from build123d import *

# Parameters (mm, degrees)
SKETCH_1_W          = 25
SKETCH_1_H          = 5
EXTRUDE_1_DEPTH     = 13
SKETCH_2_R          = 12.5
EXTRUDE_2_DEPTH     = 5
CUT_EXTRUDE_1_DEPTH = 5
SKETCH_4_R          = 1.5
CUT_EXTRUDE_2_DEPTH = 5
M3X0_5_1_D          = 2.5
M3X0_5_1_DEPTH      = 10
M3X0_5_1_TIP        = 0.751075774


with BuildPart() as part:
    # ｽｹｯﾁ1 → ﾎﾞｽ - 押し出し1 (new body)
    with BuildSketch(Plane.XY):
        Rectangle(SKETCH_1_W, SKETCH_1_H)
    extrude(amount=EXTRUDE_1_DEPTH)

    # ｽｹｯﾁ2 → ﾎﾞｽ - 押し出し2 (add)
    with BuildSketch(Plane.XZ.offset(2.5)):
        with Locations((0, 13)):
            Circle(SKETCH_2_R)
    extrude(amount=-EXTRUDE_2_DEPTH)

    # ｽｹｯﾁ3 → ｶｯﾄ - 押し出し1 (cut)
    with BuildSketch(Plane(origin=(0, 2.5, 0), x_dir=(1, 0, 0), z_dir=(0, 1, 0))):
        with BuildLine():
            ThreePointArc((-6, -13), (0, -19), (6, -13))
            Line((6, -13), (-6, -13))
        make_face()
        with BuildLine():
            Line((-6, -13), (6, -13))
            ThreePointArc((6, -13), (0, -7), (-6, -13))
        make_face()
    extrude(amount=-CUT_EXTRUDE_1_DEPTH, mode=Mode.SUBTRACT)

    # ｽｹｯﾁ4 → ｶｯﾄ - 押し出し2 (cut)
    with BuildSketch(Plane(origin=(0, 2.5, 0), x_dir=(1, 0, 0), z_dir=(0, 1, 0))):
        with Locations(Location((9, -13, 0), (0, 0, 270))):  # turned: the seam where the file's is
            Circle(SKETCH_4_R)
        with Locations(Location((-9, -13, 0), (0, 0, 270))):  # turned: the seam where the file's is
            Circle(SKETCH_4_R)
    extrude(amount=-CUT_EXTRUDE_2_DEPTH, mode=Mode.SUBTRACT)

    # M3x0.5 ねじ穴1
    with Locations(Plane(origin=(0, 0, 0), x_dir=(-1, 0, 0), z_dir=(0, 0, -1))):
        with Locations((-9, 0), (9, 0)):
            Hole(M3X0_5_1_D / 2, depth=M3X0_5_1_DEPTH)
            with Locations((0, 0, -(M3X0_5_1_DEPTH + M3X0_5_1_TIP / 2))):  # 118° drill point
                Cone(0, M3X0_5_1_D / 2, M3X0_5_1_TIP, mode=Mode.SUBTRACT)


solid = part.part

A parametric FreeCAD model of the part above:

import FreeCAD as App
import Part
import Sketcher
from FreeCAD import Vector

doc = App.newDocument("Part")
body = doc.addObject("PartDesign::Body", "Body")

# Sketch on XY plane
sketch1 = doc.addObject("Sketcher::SketchObject", "Sketch")
body.addObject(sketch1)
sketch1.AttachmentSupport = (doc.XY_Plane, [""])
sketch1.MapMode = "FlatFace"
sketch1.addGeometry([
    Part.LineSegment(Vector(-12, 2, 0), Vector(-12, -2, 0)),
    Part.LineSegment(Vector(-12, -2, 0), Vector(12, -2, 0)),
    Part.LineSegment(Vector(12, -2, 0), Vector(12, 2, 0)),
    Part.LineSegment(Vector(12, 2, 0), Vector(-12, 2, 0)),
], False)
sketch1.addConstraint([
    Sketcher.Constraint("Coincident", 0, 2, 1, 1),
    Sketcher.Constraint("Coincident", 1, 2, 2, 1),
    Sketcher.Constraint("Coincident", 2, 2, 3, 1),
    Sketcher.Constraint("Coincident", 3, 2, 0, 1),
    Sketcher.Constraint("Vertical", 0),
    Sketcher.Constraint("Horizontal", 1),
    Sketcher.Constraint("Vertical", 2),
    Sketcher.Constraint("Horizontal", 3),
    Sketcher.Constraint("Symmetric", 0, 2, 2, 2, -1, 1),
    Sketcher.Constraint("DistanceX", 1, 1, 1, 2, 25.0),
    Sketcher.Constraint("DistanceY", 0, 2, 0, 1, 5.0),
])
pad1 = doc.addObject("PartDesign::Pad", "Pad")
body.addObject(pad1)
pad1.Profile = sketch1
pad1.Length = 13

# Sketch on XZ plane
sketch2 = doc.addObject("Sketcher::SketchObject", "Sketch001")
body.addObject(sketch2)
sketch2.AttachmentSupport = (doc.XZ_Plane, [""])
sketch2.MapMode = "FlatFace"
sketch2.AttachmentOffset = App.Placement(Vector(0, 0, 2.5), App.Rotation())
sketch2.addGeometry(Part.Circle(Vector(0, 13, 0), Vector(0, 0, 1), 12), False)
sketch2.addConstraint([
    Sketcher.Constraint("PointOnObject", 0, 3, -2),
    Sketcher.Constraint("Diameter", 0, 25.0),
    Sketcher.Constraint("DistanceY", -1, 1, 0, 3, 13.0),
])
pad2 = doc.addObject("PartDesign::Pad", "Pad001")
body.addObject(pad2)
pad2.Profile = sketch2
pad2.Length = 5
pad2.Reversed = True

# Sketch on XZ plane
sketch3 = doc.addObject("Sketcher::SketchObject", "Sketch002")
body.addObject(sketch3)
sketch3.AttachmentSupport = (doc.XZ_Plane, [""])
sketch3.MapMode = "FlatFace"
sketch3.AttachmentOffset = App.Placement(Vector(0, 0, -2.5), App.Rotation())
sketch3.addGeometry(Part.Circle(Vector(0, 13, 0), Vector(0, 0, 1), 6), False)
sketch3.addConstraint([
    Sketcher.Constraint("PointOnObject", 0, 3, -2),
    Sketcher.Constraint("Diameter", 0, 12.0),
    Sketcher.Constraint("DistanceY", -1, 1, 0, 3, 13.0),
])
pocket1 = doc.addObject("PartDesign::Pocket", "Pocket")
body.addObject(pocket1)
pocket1.Profile = sketch3
pocket1.Length = 5
pocket1.Reversed = True

# Sketch on XZ plane
sketch4 = doc.addObject("Sketcher::SketchObject", "Sketch003")
body.addObject(sketch4)
sketch4.AttachmentSupport = (doc.XZ_Plane, [""])
sketch4.MapMode = "FlatFace"
sketch4.AttachmentOffset = App.Placement(Vector(0, 0, -2.5), App.Rotation())
sketch4.addGeometry([
    Part.Circle(Vector(9, 13, 0), Vector(0, 0, 1), 1.5),
    Part.Circle(Vector(-9, 13, 0), Vector(0, 0, 1), 1.5),
], False)
sketch4.addConstraint([
    Sketcher.Constraint("Equal", 0, 1),
    Sketcher.Constraint("Symmetric", 0, 3, 1, 3, -2),
    Sketcher.Constraint("Diameter", 0, 3.0),
    Sketcher.Constraint("DistanceX", -1, 1, 0, 3, 9.0),
    Sketcher.Constraint("DistanceY", -1, 1, 0, 3, 13.0),
])
pocket2 = doc.addObject("PartDesign::Pocket", "Pocket001")
body.addObject(pocket2)
pocket2.Profile = sketch4
pocket2.Length = 5
pocket2.Reversed = True

# Sketch on XY plane
sketch5 = doc.addObject("Sketcher::SketchObject", "Sketch004")
body.addObject(sketch5)
sketch5.AttachmentSupport = (doc.XY_Plane, [""])
sketch5.MapMode = "FlatFace"
sketch5.addGeometry([
    Part.Circle(Vector(9, 0, 0), Vector(0, 0, 1), 1.2),
    Part.Circle(Vector(-9, 0, 0), Vector(0, 0, 1), 1.2),
], False)
sketch5.addConstraint([
    Sketcher.Constraint("Equal", 0, 1),
    Sketcher.Constraint("Symmetric", 0, 3, 1, 3, -1, 1),
    Sketcher.Constraint("PointOnObject", 0, 3, -1),
    Sketcher.Constraint("Diameter", 0, 2.5),
    Sketcher.Constraint("DistanceX", -1, 1, 0, 3, 9.0),
])
doc.recompute()
hole = doc.addObject("PartDesign::Hole", "Hole")
body.addObject(hole)
hole.Profile = sketch5
hole.ThreadType = "None"
hole.Diameter = 2.5
hole.DepthType = "Dimension"
hole.Depth = 10
hole.DrillPoint = "Angled"
hole.DrillPointAngle = 118
hole.Reversed = True

doc.recompute()
